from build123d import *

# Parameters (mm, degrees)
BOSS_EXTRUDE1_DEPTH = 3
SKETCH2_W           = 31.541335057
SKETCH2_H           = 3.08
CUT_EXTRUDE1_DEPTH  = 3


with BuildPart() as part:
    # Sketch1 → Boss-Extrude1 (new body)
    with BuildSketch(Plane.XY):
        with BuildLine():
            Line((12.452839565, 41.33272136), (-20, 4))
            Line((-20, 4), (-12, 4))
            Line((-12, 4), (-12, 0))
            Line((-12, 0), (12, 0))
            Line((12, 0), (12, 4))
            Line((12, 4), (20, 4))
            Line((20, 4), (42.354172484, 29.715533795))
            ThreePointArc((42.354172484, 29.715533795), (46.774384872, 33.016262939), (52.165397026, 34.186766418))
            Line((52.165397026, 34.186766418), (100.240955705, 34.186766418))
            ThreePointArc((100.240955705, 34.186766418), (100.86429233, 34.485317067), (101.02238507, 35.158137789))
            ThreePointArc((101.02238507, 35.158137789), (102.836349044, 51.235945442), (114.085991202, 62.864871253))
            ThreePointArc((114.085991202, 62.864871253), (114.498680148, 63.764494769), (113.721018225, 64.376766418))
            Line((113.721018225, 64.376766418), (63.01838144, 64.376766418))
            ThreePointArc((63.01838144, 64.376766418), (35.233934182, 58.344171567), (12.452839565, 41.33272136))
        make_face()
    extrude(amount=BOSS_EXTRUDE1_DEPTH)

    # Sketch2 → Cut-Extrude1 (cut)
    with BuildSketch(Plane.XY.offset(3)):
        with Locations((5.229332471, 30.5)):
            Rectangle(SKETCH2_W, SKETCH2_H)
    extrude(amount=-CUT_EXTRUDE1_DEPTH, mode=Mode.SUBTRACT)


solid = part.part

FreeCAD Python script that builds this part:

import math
import FreeCAD as App
import Part
import Sketcher

V = App.Vector
Q = App.Units.Quantity


def add_polygon(sketch, points):
    """Adds a closed chain of lines whose ends are joined by coincident constraints."""
    first, n = sketch.GeometryCount, len(points)
    for a, b in zip(points, points[1:] + points[:1]):
        sketch.addGeometry(Part.LineSegment(App.Vector(*a, 0), App.Vector(*b, 0)), False)
    for i in range(n):
        sketch.addConstraint(Sketcher.Constraint("Coincident", first + i, 2, first + (i + 1) % n, 1))

doc = App.newDocument("Part")
params = doc.addObject("Spreadsheet::Sheet", "Params")
for row, (alias, value) in enumerate([
    ("sketch1_radius", "13 mm"),
    ("sketch1_radius2", "67 mm"),
    ("sketch1_radius3", "0.8 mm"),
    ("sketch1_width", "8 mm"),
    ("sketch1_width2", "24 mm"),
    ("pad1_length", "3 mm"),
    ("sketch2_height", "3.08 mm"),
    ("pocket1_length", "3 mm"),
], start=1):
    params.set(f"A{row}", alias)
    params.set(f"B{row}", "=" + value)
    params.setAlias(f"B{row}", alias)

body = doc.addObject("PartDesign::Body", "Body")

# Sketch on XY plane
sketch1 = doc.addObject("Sketcher::SketchObject", "Sketch")
body.addObject(sketch1)
sketch1.AttachmentSupport = (doc.XY_Plane, [""])
sketch1.MapMode = "FlatFace"
sketch1.addGeometry([
    Part.LineSegment(V(12.5, 41.3, 0), V(-20, 4, 0)),  # 0
    Part.LineSegment(V(-20, 4, 0), V(-12, 4, 0)),  # 1
    Part.LineSegment(V(-12, 4, 0), V(-12, 0, 0)),  # 2
    Part.LineSegment(V(-12, 0, 0), V(12, 0, 0)),  # 3
    Part.LineSegment(V(12, 0, 0), V(12, 4, 0)),  # 4
    Part.LineSegment(V(12, 4, 0), V(20, 4, 0)),  # 5
    Part.LineSegment(V(20, 4, 0), V(42.4, 29.7, 0)),  # 6
    Part.ArcOfCircle(Part.Circle(V(52.2, 21.2, 0), V(0, 0, 1), 13), math.radians(90), math.radians(139)),  # 7
    Part.LineSegment(V(52.2, 34.2, 0), V(100.2, 34.2, 0)),  # 8
    Part.ArcOfCircle(Part.Circle(V(100.2, 35, 0), V(0, 0, 1), 0.8), math.radians(-90), math.radians(12)),  # 9
    Part.ArcOfCircle(Part.Circle(V(125.5, 40.5, 0), V(0, 0, 1), 25.1), math.radians(117), math.radians(192)),  # 10
    Part.ArcOfCircle(Part.Circle(V(113.7, 63.6, 0), V(0, 0, 1), 0.8), math.radians(-63), math.radians(90)),  # 11
    Part.LineSegment(V(113.7, 64.4, 0), V(63, 64.4, 0)),  # 12
    Part.ArcOfCircle(Part.Circle(V(63, -2.6, 0), V(0, 0, 1), 67), math.radians(90), math.radians(139)),  # 13
], False)
sketch1.addConstraint([
    Sketcher.Constraint("Coincident", 0, 2, 1, 1),
    Sketcher.Constraint("Coincident", 1, 2, 2, 1),
    Sketcher.Constraint("Coincident", 2, 2, 3, 1),
    Sketcher.Constraint("Coincident", 3, 2, 4, 1),
    Sketcher.Constraint("Coincident", 4, 2, 5, 1),
    Sketcher.Constraint("Coincident", 5, 2, 6, 1),
    Sketcher.Constraint("Tangent", 6, 2, 7, 2),
    Sketcher.Constraint("Tangent", 7, 1, 8, 1),
    Sketcher.Constraint("Tangent", 8, 2, 9, 1),
    Sketcher.Constraint("Tangent", 9, 2, 10, 2),
    Sketcher.Constraint("Tangent", 10, 1, 11, 1),
    Sketcher.Constraint("Tangent", 11, 2, 12, 1),
    Sketcher.Constraint("Tangent", 12, 2, 13, 1),
    Sketcher.Constraint("Tangent", 13, 2, 0, 1),
    Sketcher.Constraint("Horizontal", 1),
    Sketcher.Constraint("Vertical", 2),
    Sketcher.Constraint("Horizontal", 3),
    Sketcher.Constraint("Vertical", 4),
    Sketcher.Constraint("Horizontal", 5),
    Sketcher.Constraint("Horizontal", 8),
    Sketcher.Constraint("Horizontal", 12),
    Sketcher.Constraint("Equal", 9, 11),
    Sketcher.Constraint("Symmetric", 2, 2, 3, 2, -1, 1),
    Sketcher.Constraint("Symmetric", 0, 2, 5, 2, -2),
    Sketcher.Constraint("Parallel", 0, 6),
    Sketcher.Constraint("Radius", 7, Q("13 mm")),
    Sketcher.Constraint("Radius", 13, Q("67 mm")),
    Sketcher.Constraint("Radius", 9, Q("0.8 mm")),
    Sketcher.Constraint("DistanceX", 1, 1, 1, 2, Q("8 mm")),
    Sketcher.Constraint("DistanceX", 3, 1, 3, 2, Q("24 mm")),
    Sketcher.Constraint("DistanceY", 2, 2, 2, 1, Q("4 mm")),
    Sketcher.Constraint("Angle", 0, Q("-131 deg")),
    Sketcher.Constraint("Radius", 10, Q("25.094788 mm")),
    Sketcher.Constraint("DistanceY", 9, 3, 11, 3, Q("28.59 mm")),
    Sketcher.Constraint("DistanceX", 8, 1, 8, 2, Q("48.075559 mm")),
    Sketcher.Constraint("DistanceY", -1, 1, 10, 3, Q("40.533798 mm")),
    Sketcher.Constraint("Distance", 0, Q("49.466341 mm")),
])
sketch1.setExpression("Constraints[25]", "Params.sketch1_radius")
sketch1.setExpression("Constraints[26]", "Params.sketch1_radius2")
sketch1.setExpression("Constraints[27]", "Params.sketch1_radius3")
sketch1.setExpression("Constraints[28]", "Params.sketch1_width")
sketch1.setExpression("Constraints[29]", "Params.sketch1_width2")
pad1 = doc.addObject("PartDesign::Pad", "Pad")
body.addObject(pad1)
pad1.Profile = sketch1
pad1.setExpression("Length", "Params.pad1_length")

# Sketch on XY plane
sketch2 = doc.addObject("Sketcher::SketchObject", "Sketch001")
body.addObject(sketch2)
sketch2.AttachmentSupport = (doc.XY_Plane, [""])
sketch2.MapMode = "FlatFace"
sketch2.AttachmentOffset = App.Placement(V(0, 0, 3), App.Rotation())
add_polygon(sketch2, [(-10.5, 32), (-10.5, 29), (21, 29), (21, 32)])  # lines 0-3
sketch2.addConstraint([
    Sketcher.Constraint("Vertical", 0),
    Sketcher.Constraint("Horizontal", 1),
    Sketcher.Constraint("Vertical", 2),
    Sketcher.Constraint("Horizontal", 3),
    Sketcher.Constraint("DistanceX", -1, 1, 1, 2, Q("21 mm")),
    Sketcher.Constraint("DistanceY", 0, 2, 0, 1, Q("3.08 mm")),
    Sketcher.Constraint("DistanceY", -1, 1, 0, 2, Q("28.96 mm")),
    Sketcher.Constraint("DistanceX", 1, 1, 1, 2, Q("31.541335 mm")),
])
sketch2.setExpression("Constraints[9]", "Params.sketch2_height")
pocket1 = doc.addObject("PartDesign::Pocket", "Pocket")
body.addObject(pocket1)
pocket1.Profile = sketch2
pocket1.setExpression("Length", "Params.pocket1_length")

doc.recompute()
